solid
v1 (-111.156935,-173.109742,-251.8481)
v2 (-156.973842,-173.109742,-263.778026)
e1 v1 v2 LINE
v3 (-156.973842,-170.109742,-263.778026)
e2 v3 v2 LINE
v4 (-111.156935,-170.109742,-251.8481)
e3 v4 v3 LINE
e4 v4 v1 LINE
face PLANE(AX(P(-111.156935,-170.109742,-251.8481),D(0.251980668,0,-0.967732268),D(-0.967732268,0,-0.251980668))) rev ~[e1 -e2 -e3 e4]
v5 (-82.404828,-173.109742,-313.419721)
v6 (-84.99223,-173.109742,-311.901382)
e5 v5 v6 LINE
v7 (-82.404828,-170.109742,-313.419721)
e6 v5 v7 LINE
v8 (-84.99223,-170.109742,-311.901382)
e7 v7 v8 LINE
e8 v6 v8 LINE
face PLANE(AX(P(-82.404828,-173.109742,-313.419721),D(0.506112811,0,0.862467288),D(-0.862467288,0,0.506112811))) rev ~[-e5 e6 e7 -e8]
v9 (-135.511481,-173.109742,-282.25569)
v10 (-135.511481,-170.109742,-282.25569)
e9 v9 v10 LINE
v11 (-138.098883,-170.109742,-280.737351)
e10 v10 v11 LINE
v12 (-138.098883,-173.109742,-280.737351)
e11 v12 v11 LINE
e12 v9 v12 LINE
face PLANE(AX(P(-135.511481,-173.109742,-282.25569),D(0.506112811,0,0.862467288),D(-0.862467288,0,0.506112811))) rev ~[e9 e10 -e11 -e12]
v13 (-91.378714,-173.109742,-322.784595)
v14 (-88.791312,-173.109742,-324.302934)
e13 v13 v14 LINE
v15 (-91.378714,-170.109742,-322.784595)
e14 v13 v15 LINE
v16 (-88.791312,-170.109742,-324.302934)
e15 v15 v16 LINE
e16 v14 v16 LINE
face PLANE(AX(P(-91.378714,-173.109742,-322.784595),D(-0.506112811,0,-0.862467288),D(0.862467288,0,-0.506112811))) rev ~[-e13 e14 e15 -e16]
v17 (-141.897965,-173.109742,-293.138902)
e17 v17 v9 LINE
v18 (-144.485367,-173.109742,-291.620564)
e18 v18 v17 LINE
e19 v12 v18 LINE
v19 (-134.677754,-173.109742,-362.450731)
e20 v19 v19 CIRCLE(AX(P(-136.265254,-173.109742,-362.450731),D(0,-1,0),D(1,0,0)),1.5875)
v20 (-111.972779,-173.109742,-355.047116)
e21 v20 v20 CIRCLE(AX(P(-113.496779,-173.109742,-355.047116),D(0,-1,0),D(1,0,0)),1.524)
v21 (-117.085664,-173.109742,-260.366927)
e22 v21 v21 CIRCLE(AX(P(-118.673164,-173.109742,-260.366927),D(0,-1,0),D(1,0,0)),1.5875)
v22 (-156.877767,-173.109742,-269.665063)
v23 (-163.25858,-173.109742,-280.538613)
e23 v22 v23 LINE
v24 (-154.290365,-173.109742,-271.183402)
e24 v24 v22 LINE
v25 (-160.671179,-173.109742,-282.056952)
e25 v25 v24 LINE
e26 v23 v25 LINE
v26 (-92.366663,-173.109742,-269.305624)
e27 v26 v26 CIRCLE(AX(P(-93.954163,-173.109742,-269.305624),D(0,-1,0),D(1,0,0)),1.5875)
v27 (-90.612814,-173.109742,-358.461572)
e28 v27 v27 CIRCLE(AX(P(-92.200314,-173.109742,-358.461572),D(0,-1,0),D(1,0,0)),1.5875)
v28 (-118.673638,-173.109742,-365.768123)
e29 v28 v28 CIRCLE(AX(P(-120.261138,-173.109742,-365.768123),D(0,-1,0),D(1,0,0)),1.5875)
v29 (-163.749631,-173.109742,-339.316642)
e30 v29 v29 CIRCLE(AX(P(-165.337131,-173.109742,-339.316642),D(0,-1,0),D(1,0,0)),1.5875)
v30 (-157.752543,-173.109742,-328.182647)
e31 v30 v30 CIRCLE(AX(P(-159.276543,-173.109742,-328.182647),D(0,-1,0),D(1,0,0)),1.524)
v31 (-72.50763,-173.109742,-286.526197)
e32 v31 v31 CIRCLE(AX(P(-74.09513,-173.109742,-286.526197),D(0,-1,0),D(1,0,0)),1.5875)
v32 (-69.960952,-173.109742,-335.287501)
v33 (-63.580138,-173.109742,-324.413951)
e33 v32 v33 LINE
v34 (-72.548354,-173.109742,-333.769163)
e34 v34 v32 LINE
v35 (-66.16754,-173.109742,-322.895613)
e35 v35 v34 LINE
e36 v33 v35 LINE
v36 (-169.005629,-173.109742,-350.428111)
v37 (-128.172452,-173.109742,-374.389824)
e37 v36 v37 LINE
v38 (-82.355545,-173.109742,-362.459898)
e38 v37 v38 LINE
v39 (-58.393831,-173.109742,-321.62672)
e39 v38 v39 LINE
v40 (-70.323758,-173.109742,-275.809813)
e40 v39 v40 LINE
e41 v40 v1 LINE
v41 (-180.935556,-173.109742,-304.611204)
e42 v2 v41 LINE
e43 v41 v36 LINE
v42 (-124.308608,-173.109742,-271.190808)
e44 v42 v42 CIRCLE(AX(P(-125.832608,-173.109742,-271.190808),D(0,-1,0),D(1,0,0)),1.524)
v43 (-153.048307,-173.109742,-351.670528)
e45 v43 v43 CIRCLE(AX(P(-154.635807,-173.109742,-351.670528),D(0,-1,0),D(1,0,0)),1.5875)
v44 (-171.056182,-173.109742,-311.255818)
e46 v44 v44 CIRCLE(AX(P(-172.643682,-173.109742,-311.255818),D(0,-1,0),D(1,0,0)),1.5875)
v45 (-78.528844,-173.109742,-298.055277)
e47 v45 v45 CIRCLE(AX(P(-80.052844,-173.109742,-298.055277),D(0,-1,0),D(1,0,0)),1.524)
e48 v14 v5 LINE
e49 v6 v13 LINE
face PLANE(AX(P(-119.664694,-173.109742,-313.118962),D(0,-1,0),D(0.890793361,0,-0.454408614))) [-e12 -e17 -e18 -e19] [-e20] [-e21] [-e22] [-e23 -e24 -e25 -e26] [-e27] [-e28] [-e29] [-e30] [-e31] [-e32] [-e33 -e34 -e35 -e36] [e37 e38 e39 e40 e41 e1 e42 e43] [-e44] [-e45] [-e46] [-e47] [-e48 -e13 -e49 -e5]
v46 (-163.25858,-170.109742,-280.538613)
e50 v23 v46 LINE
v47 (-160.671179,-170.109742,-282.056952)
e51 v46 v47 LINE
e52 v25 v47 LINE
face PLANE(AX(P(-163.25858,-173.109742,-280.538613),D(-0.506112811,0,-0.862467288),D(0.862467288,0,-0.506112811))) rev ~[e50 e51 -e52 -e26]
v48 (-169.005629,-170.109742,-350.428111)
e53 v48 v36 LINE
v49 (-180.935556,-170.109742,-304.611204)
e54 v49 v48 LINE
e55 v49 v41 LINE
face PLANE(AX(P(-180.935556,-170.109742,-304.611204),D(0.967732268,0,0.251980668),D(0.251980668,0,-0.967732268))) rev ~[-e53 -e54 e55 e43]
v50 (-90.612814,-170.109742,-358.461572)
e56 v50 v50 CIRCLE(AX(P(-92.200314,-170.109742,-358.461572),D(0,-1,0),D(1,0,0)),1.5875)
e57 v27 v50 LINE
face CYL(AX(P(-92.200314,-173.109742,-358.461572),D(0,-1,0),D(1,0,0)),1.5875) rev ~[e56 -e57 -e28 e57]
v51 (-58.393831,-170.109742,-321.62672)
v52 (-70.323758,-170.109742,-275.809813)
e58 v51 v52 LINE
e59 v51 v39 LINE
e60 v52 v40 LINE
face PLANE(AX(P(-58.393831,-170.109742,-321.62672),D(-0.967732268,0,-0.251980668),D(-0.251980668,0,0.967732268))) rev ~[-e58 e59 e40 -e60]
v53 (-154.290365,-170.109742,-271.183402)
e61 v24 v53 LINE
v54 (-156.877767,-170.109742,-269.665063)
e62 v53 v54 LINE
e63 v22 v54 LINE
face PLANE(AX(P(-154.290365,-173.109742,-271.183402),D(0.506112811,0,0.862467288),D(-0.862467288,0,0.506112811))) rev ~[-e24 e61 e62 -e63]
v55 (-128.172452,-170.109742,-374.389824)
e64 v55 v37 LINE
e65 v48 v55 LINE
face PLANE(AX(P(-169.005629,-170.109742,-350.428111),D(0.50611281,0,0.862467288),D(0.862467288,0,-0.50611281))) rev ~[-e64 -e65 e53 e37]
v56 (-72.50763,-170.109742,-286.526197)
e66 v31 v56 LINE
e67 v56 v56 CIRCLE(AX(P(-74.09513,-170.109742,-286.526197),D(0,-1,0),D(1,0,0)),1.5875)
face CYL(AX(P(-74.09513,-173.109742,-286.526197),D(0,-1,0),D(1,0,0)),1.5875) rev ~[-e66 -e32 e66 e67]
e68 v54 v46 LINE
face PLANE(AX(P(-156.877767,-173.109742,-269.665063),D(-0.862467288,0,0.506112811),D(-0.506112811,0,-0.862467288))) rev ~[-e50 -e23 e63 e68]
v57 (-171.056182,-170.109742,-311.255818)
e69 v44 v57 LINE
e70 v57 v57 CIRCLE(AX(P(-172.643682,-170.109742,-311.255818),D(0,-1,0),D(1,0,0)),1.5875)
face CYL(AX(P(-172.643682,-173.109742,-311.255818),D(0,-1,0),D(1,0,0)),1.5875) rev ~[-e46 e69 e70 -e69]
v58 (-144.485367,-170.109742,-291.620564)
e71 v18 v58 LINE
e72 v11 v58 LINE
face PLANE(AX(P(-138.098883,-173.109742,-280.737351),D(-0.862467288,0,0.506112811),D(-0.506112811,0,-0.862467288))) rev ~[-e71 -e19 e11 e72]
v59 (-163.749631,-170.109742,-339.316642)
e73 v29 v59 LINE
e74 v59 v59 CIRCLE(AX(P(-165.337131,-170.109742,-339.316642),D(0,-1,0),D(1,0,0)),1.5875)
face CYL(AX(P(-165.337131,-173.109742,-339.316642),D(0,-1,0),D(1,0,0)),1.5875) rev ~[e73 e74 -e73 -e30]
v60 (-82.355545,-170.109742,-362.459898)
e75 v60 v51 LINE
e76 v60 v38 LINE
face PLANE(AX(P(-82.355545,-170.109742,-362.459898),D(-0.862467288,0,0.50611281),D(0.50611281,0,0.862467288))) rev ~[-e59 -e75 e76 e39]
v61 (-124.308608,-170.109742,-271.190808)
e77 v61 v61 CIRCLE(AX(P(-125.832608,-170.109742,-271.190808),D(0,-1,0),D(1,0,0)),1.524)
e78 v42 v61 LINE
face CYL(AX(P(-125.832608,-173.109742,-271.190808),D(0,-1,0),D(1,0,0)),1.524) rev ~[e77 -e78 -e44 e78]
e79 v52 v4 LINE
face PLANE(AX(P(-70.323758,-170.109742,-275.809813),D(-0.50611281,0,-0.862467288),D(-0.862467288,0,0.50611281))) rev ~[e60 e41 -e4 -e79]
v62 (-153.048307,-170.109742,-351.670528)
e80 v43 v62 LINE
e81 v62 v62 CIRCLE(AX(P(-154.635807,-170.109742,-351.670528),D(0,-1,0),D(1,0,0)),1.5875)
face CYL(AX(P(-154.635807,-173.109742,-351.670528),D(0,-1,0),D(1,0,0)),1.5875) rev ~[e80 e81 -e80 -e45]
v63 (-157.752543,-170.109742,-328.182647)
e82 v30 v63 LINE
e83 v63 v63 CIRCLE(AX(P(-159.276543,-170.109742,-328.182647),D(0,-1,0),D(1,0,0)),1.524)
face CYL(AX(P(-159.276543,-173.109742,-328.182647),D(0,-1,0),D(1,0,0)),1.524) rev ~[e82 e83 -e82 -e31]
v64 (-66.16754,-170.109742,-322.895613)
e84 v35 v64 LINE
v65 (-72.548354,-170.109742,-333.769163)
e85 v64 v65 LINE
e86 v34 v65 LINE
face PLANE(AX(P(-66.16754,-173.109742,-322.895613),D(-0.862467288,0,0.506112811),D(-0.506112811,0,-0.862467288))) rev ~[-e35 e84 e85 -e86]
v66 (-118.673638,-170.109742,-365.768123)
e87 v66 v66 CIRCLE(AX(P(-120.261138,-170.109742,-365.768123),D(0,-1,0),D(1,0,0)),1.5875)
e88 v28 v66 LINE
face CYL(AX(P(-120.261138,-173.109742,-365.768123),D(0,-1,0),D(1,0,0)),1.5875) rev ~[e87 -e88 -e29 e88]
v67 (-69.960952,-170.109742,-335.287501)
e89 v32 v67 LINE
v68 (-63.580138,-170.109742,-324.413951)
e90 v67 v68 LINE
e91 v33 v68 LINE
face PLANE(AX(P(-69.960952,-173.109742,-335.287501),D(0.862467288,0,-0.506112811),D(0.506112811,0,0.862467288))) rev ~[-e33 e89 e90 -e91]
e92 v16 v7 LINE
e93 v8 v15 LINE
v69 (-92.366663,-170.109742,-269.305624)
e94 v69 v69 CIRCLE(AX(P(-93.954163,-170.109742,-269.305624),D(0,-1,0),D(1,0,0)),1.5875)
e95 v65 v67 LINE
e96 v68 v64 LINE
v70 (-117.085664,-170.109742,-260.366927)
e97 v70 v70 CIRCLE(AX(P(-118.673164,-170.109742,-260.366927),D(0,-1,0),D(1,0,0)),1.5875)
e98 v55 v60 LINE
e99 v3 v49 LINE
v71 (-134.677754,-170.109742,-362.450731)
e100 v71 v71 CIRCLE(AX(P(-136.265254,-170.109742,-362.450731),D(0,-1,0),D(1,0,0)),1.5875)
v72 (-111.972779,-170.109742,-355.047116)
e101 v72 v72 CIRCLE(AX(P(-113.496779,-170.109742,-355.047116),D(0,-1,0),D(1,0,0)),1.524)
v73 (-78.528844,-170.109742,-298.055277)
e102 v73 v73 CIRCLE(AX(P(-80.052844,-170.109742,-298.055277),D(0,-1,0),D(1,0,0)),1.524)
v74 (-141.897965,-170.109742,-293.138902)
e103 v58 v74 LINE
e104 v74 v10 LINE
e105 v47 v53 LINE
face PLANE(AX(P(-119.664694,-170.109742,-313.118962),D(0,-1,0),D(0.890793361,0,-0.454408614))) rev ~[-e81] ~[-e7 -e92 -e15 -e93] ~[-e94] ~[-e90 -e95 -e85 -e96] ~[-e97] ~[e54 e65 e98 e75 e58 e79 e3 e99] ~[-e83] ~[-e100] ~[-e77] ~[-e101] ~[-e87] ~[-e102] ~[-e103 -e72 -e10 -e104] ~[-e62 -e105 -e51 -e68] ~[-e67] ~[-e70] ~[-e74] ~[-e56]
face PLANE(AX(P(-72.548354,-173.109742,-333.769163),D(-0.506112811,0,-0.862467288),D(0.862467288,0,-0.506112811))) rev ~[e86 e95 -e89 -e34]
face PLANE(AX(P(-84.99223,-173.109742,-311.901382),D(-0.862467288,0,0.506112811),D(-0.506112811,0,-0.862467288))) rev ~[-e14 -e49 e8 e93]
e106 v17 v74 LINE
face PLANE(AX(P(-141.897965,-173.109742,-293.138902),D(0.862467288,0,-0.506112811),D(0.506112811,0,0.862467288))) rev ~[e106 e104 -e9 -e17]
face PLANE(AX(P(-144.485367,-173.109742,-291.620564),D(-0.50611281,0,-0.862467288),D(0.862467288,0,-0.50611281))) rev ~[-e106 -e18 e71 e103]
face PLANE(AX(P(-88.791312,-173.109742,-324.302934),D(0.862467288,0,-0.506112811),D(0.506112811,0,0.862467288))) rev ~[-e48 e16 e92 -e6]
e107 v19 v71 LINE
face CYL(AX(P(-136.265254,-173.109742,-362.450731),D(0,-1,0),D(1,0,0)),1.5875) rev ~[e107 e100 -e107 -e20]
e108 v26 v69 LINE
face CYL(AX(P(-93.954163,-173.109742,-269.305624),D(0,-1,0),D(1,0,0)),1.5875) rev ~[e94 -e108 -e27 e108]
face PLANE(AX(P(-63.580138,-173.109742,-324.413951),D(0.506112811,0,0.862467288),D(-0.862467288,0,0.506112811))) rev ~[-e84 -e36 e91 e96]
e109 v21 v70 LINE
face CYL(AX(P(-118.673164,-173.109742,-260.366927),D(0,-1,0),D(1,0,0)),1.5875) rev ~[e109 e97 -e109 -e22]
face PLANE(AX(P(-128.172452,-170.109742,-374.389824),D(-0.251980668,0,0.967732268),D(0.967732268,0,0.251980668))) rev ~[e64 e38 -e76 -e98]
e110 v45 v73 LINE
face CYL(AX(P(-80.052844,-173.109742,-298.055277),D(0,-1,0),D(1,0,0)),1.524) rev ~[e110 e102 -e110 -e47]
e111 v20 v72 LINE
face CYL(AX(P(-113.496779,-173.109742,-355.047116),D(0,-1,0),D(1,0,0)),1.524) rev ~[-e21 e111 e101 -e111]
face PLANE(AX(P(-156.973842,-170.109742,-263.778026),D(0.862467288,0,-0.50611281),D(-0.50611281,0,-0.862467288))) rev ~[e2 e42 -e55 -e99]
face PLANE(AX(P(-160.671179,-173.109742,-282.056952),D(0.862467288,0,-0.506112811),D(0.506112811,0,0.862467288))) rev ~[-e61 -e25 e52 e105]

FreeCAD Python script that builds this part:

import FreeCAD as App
import Part
import Sketcher

V = App.Vector
Q = App.Units.Quantity


def add_polygon(sketch, points):
    """Adds a closed chain of lines whose ends are joined by coincident constraints."""
    first, n = sketch.GeometryCount, len(points)
    for a, b in zip(points, points[1:] + points[:1]):
        sketch.addGeometry(Part.LineSegment(App.Vector(*a, 0), App.Vector(*b, 0)), False)
    for i in range(n):
        sketch.addConstraint(Sketcher.Constraint("Coincident", first + i, 2, first + (i + 1) % n, 1))

doc = App.newDocument("Part")
params = doc.addObject("Spreadsheet::Sheet", "Params")
for row, (alias, value) in enumerate([
    ("pad1_length", "3 mm"),
    ("sketch2_diameter", "0.12 in"),
    ("sketch2_diameter2", "0.125 in"),
    ("pocket1_length", "3 mm"),
], start=1):
    params.set(f"A{row}", alias)
    params.set(f"B{row}", "=" + value)
    params.setAlias(f"B{row}", alias)

body = doc.addObject("PartDesign::Body", "Body")

sketch1 = body.newObject("Sketcher::SketchObject", "Sketch")
sketch1.AttachmentSupport = (doc.getObject("XZ_Plane"), [""])
sketch1.MapMode = "FlatFace"
sketch1.AttachmentOffset = App.Placement(V(0, 0, 170.109742), App.Rotation())
add_polygon(sketch1, [(-128, -374), (-82, -362), (-58, -322), (-70, -276), (-111, -252), (-157, -264), (-181, -305), (-169, -350)])
sketch1.addConstraint([
    Sketcher.Constraint("Perpendicular", 0, 2),
    Sketcher.Constraint("Perpendicular", 1, 3),
    Sketcher.Constraint("Perpendicular", 2, 4),
    Sketcher.Constraint("Perpendicular", 3, 5),
    Sketcher.Constraint("Perpendicular", 4, 6),
    Sketcher.Constraint("Perpendicular", 5, 7),
    Sketcher.Constraint("Equal", 0, 1),
    Sketcher.Constraint("Equal", 1, 2),
    Sketcher.Constraint("Equal", 2, 3),
    Sketcher.Constraint("Equal", 3, 4),
    Sketcher.Constraint("Equal", 4, 5),
    Sketcher.Constraint("DistanceY", 3, 2, -1, 1, Q("251.8481 mm")),
    Sketcher.Constraint("DistanceY", 0, 2, 3, 2, Q("110.611798 mm")),
    Sketcher.Constraint("Distance", 0, Q("47.34461 mm")),
    Sketcher.Constraint("DistanceX", 1, 2, -1, 1, Q("58.393831 mm")),
    Sketcher.Constraint("DistanceY", 1, 2, -1, 1, Q("321.62672 mm")),
])
pad1 = body.newObject("PartDesign::Pad", "Pad")
pad1.Profile = sketch1
pad1.setExpression("Length", "Params.pad1_length")

sketch2 = body.newObject("Sketcher::SketchObject", "Sketch001")
sketch2.AttachmentSupport = (doc.getObject("XZ_Plane"), [""])
sketch2.MapMode = "FlatFace"
sketch2.AttachmentOffset = App.Placement(V(0, 0, 173.109742), App.Rotation())
sketch2.addGeometry(Part.Circle(V(-172.6, -311.3, 0), V(0, 0, 1), 1.6), False)
sketch2.addGeometry(Part.Circle(V(-165.3, -339.3, 0), V(0, 0, 1), 1.6), False)
sketch2.addGeometry(Part.Circle(V(-154.6, -351.7, 0), V(0, 0, 1), 1.6), False)
sketch2.addGeometry(Part.Circle(V(-159.3, -328.2, 0), V(0, 0, 1), 1.5), False)
sketch2.addGeometry(Part.Circle(V(-125.8, -271.2, 0), V(0, 0, 1), 1.5), False)
sketch2.addGeometry(Part.Circle(V(-118.7, -260.4, 0), V(0, 0, 1), 1.6), False)
sketch2.addGeometry(Part.Circle(V(-80.1, -298.1, 0), V(0, 0, 1), 1.5), False)
sketch2.addGeometry(Part.Circle(V(-74.1, -286.5, 0), V(0, 0, 1), 1.6), False)
sketch2.addGeometry(Part.Circle(V(-136.3, -362.5, 0), V(0, 0, 1), 1.6), False)
sketch2.addGeometry(Part.Circle(V(-120.3, -365.8, 0), V(0, 0, 1), 1.6), False)
sketch2.addGeometry(Part.Circle(V(-113.5, -355, 0), V(0, 0, 1), 1.5), False)
sketch2.addGeometry(Part.Circle(V(-92.2, -358.5, 0), V(0, 0, 1), 1.6), False)
sketch2.addGeometry(Part.Circle(V(-94, -269.3, 0), V(0, 0, 1), 1.6), False)
add_polygon(sketch2, [(-163.3, -280.5), (-160.7, -282.1), (-154.3, -271.2), (-156.9, -269.7)])
add_polygon(sketch2, [(-144.5, -291.6), (-141.9, -293.1), (-135.5, -282.3), (-138.1, -280.7)])
add_polygon(sketch2, [(-63.6, -324.4), (-66.2, -322.9), (-72.5, -333.8), (-70, -335.3)])
add_polygon(sketch2, [(-82.4, -313.4), (-85, -311.9), (-91.4, -322.8), (-88.8, -324.3)])
sketch2.addConstraint([
    Sketcher.Constraint("Equal", 0, 1),
    Sketcher.Constraint("Equal", 1, 2),
    Sketcher.Constraint("Equal", 3, 4),
    Sketcher.Constraint("Equal", 2, 5),
    Sketcher.Constraint("Equal", 4, 6),
    Sketcher.Constraint("Equal", 5, 7),
    Sketcher.Constraint("Equal", 7, 8),
    Sketcher.Constraint("Equal", 8, 9),
    Sketcher.Constraint("Equal", 6, 10),
    Sketcher.Constraint("Equal", 9, 11),
    Sketcher.Constraint("Equal", 11, 12),
    Sketcher.Constraint("Perpendicular", 13, 14),
    Sketcher.Constraint("Perpendicular", 14, 15),
    Sketcher.Constraint("Perpendicular", 15, 16),
    Sketcher.Constraint("Perpendicular", 16, 17),
    Sketcher.Constraint("Perpendicular", 17, 18),
    Sketcher.Constraint("Perpendicular", 18, 19),
    Sketcher.Constraint("Perpendicular", 19, 20),
    Sketcher.Constraint("Perpendicular", 20, 21),
    Sketcher.Constraint("Perpendicular", 21, 22),
    Sketcher.Constraint("Perpendicular", 22, 23),
    Sketcher.Constraint("Perpendicular", 23, 24),
    Sketcher.Constraint("Perpendicular", 24, 25),
    Sketcher.Constraint("Perpendicular", 25, 26),
    Sketcher.Constraint("Perpendicular", 26, 27),
    Sketcher.Constraint("Perpendicular", 27, 28),
    Sketcher.Constraint("Equal", 15, 17),
    Sketcher.Constraint("Equal", 19, 21),
    Sketcher.Constraint("Equal", 16, 22),
    Sketcher.Constraint("Equal", 23, 25),
    Sketcher.Constraint("Equal", 20, 26),
    Sketcher.Constraint("Diameter", 3, Q("0.12 in")),
    Sketcher.Constraint("Diameter", 0, Q("0.125 in")),
    Sketcher.Constraint("Distance", 13, Q("3 mm")),
    Sketcher.Constraint("DistanceY", 14, 2, -1, 1, Q("271.183402 mm")),
    Sketcher.Constraint("DistanceY", 23, 2, -1, 1, Q("335.287501 mm")),
    Sketcher.Constraint("DistanceX", 2, 3, 4, 3, Q("28.803199 mm")),
    Sketcher.Constraint("DistanceY", 2, 3, 5, 3, Q("91.303601 mm")),
    Sketcher.Constraint("DistanceX", 3, 3, 6, 3, Q("79.223699 mm")),
    Sketcher.Constraint("DistanceX", 5, 3, 12, 3, Q("24.719002 mm")),
    Sketcher.Constraint("DistanceX", 14, 2, 5, 3, Q("35.617201 mm")),
    Sketcher.Constraint("DistanceX", 15, 2, 14, 2, Q("2.587402 mm")),
    Sketcher.Constraint("DistanceX", 0, 3, 16, 2, Q("9.385101 mm")),
    Sketcher.Constraint("DistanceX", 14, 2, 17, 2, Q("12.3924 mm")),
    Sketcher.Constraint("DistanceY", 17, 2, 14, 2, Q("21.955501 mm")),
    Sketcher.Constraint("DistanceX", 25, 2, 7, 3, Q("10.8971 mm")),
    Sketcher.Constraint("DistanceX", 0, 3, -1, 1, Q("172.643682 mm")),
    Sketcher.Constraint("DistanceY", 0, 3, -1, 1, Q("311.255818 mm")),
    Sketcher.Constraint("DistanceX", 1, 3, -1, 1, Q("165.337131 mm")),
    Sketcher.Constraint("DistanceY", 2, 3, -1, 1, Q("351.670528 mm")),
    Sketcher.Constraint("DistanceX", 4, 3, -1, 1, Q("125.832608 mm")),
    Sketcher.Constraint("DistanceY", 4, 3, -1, 1, Q("271.190808 mm")),
    Sketcher.Constraint("DistanceX", 7, 3, -1, 1, Q("74.09513 mm")),
    Sketcher.Constraint("DistanceY", 8, 3, -1, 1, Q("362.450731 mm")),
    Sketcher.Constraint("DistanceX", 10, 3, -1, 1, Q("113.496779 mm")),
    Sketcher.Constraint("DistanceY", 13, 2, -1, 1, Q("282.056952 mm")),
    Sketcher.Constraint("DistanceX", 18, 2, -1, 1, Q("135.511481 mm")),
    Sketcher.Constraint("DistanceX", 21, 2, -1, 1, Q("66.16754 mm")),
    Sketcher.Constraint("DistanceY", 28, 2, -1, 1, Q("313.419721 mm")),
    Sketcher.Constraint("DistanceX", 0, 3, 3, 3, Q("13.367139 mm")),
    Sketcher.Constraint("DistanceY", 3, 3, 0, 3, Q("16.926829 mm")),
    Sketcher.Constraint("DistanceY", 6, 3, 4, 3, Q("26.864468 mm")),
    Sketcher.Constraint("DistanceY", 6, 3, 7, 3, Q("11.52908 mm")),
    Sketcher.Constraint("DistanceY", 8, 3, 1, 3, Q("23.134089 mm")),
    Sketcher.Constraint("DistanceX", 3, 3, 8, 3, Q("23.011289 mm")),
    Sketcher.Constraint("DistanceX", 2, 3, 9, 3, Q("34.374669 mm")),
    Sketcher.Constraint("DistanceY", 9, 3, 1, 3, Q("26.451481 mm")),
    Sketcher.Constraint("DistanceY", 10, 3, 3, 3, Q("26.864468 mm")),
    Sketcher.Constraint("DistanceY", 9, 3, 11, 3, Q("7.306551 mm")),
    Sketcher.Constraint("DistanceX", 8, 3, 11, 3, Q("44.06494 mm")),
    Sketcher.Constraint("DistanceY", 21, 2, 12, 3, Q("53.589989 mm")),
])
sketch2.setExpression("Constraints[47]", "Params.sketch2_diameter")
sketch2.setExpression("Constraints[48]", "Params.sketch2_diameter2")
pocket1 = body.newObject("PartDesign::Pocket", "Pocket")
pocket1.Profile = sketch2
pocket1.setExpression("Length", "Params.pocket1_length")

doc.recompute()
